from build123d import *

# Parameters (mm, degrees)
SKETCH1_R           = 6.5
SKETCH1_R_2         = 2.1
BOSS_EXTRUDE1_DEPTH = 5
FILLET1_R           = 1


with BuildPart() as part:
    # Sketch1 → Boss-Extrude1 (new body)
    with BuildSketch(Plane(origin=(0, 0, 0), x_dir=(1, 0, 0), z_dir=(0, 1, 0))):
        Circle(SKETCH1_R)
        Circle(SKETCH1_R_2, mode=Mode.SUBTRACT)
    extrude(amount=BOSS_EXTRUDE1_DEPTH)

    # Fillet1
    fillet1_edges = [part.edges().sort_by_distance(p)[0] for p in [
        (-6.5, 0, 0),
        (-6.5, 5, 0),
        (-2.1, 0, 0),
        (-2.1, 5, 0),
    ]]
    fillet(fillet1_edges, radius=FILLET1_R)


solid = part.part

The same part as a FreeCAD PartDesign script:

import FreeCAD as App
import Part
import Sketcher

V = App.Vector


def edges_at(feature, points):
    """Names of the edges that pass closest to the given points."""
    edges = feature.Shape.Edges
    near = lambda p: min(range(len(edges)), key=lambda i: edges[i].distToShape(Part.Vertex(*p))[0])
    return sorted({f"Edge{near(p) + 1}" for p in points})

doc = App.newDocument("Part")
body = doc.addObject("PartDesign::Body", "Body")

# Sketch on XZ plane
sketch1 = body.newObject("Sketcher::SketchObject", "Sketch")
sketch1.AttachmentSupport = (doc.getObject("XZ_Plane"), [""])
sketch1.MapMode = "FlatFace"
sketch1.addGeometry(Part.Circle(V(0, 0, 0), V(0, 0, 1), 6.5), False)
sketch1.addGeometry(Part.Circle(V(0, 0, 0), V(0, 0, 1), 2.1), False)
sketch1.addConstraint(Sketcher.Constraint("Coincident", 0, 3, -1, 1))
sketch1.addConstraint(Sketcher.Constraint("Coincident", 1, 3, -1, 1))
sketch1.addConstraint(Sketcher.Constraint("Diameter", 0, 13.0))
sketch1.addConstraint(Sketcher.Constraint("Diameter", 1, 4.2))
pad1 = body.newObject("PartDesign::Pad", "Pad")
pad1.Profile = sketch1
pad1.Length = 5
pad1.Reversed = True
doc.recompute()

fillet = body.newObject("PartDesign::Fillet", "Fillet")
fillet.Base = (pad1, edges_at(pad1, [
    (-6.5, 0, 0),
    (-6.5, 5, 0),
    (-2.1, 0, 0),
    (-2.1, 5, 0),
]))
fillet.Radius = 1

doc.recompute()
